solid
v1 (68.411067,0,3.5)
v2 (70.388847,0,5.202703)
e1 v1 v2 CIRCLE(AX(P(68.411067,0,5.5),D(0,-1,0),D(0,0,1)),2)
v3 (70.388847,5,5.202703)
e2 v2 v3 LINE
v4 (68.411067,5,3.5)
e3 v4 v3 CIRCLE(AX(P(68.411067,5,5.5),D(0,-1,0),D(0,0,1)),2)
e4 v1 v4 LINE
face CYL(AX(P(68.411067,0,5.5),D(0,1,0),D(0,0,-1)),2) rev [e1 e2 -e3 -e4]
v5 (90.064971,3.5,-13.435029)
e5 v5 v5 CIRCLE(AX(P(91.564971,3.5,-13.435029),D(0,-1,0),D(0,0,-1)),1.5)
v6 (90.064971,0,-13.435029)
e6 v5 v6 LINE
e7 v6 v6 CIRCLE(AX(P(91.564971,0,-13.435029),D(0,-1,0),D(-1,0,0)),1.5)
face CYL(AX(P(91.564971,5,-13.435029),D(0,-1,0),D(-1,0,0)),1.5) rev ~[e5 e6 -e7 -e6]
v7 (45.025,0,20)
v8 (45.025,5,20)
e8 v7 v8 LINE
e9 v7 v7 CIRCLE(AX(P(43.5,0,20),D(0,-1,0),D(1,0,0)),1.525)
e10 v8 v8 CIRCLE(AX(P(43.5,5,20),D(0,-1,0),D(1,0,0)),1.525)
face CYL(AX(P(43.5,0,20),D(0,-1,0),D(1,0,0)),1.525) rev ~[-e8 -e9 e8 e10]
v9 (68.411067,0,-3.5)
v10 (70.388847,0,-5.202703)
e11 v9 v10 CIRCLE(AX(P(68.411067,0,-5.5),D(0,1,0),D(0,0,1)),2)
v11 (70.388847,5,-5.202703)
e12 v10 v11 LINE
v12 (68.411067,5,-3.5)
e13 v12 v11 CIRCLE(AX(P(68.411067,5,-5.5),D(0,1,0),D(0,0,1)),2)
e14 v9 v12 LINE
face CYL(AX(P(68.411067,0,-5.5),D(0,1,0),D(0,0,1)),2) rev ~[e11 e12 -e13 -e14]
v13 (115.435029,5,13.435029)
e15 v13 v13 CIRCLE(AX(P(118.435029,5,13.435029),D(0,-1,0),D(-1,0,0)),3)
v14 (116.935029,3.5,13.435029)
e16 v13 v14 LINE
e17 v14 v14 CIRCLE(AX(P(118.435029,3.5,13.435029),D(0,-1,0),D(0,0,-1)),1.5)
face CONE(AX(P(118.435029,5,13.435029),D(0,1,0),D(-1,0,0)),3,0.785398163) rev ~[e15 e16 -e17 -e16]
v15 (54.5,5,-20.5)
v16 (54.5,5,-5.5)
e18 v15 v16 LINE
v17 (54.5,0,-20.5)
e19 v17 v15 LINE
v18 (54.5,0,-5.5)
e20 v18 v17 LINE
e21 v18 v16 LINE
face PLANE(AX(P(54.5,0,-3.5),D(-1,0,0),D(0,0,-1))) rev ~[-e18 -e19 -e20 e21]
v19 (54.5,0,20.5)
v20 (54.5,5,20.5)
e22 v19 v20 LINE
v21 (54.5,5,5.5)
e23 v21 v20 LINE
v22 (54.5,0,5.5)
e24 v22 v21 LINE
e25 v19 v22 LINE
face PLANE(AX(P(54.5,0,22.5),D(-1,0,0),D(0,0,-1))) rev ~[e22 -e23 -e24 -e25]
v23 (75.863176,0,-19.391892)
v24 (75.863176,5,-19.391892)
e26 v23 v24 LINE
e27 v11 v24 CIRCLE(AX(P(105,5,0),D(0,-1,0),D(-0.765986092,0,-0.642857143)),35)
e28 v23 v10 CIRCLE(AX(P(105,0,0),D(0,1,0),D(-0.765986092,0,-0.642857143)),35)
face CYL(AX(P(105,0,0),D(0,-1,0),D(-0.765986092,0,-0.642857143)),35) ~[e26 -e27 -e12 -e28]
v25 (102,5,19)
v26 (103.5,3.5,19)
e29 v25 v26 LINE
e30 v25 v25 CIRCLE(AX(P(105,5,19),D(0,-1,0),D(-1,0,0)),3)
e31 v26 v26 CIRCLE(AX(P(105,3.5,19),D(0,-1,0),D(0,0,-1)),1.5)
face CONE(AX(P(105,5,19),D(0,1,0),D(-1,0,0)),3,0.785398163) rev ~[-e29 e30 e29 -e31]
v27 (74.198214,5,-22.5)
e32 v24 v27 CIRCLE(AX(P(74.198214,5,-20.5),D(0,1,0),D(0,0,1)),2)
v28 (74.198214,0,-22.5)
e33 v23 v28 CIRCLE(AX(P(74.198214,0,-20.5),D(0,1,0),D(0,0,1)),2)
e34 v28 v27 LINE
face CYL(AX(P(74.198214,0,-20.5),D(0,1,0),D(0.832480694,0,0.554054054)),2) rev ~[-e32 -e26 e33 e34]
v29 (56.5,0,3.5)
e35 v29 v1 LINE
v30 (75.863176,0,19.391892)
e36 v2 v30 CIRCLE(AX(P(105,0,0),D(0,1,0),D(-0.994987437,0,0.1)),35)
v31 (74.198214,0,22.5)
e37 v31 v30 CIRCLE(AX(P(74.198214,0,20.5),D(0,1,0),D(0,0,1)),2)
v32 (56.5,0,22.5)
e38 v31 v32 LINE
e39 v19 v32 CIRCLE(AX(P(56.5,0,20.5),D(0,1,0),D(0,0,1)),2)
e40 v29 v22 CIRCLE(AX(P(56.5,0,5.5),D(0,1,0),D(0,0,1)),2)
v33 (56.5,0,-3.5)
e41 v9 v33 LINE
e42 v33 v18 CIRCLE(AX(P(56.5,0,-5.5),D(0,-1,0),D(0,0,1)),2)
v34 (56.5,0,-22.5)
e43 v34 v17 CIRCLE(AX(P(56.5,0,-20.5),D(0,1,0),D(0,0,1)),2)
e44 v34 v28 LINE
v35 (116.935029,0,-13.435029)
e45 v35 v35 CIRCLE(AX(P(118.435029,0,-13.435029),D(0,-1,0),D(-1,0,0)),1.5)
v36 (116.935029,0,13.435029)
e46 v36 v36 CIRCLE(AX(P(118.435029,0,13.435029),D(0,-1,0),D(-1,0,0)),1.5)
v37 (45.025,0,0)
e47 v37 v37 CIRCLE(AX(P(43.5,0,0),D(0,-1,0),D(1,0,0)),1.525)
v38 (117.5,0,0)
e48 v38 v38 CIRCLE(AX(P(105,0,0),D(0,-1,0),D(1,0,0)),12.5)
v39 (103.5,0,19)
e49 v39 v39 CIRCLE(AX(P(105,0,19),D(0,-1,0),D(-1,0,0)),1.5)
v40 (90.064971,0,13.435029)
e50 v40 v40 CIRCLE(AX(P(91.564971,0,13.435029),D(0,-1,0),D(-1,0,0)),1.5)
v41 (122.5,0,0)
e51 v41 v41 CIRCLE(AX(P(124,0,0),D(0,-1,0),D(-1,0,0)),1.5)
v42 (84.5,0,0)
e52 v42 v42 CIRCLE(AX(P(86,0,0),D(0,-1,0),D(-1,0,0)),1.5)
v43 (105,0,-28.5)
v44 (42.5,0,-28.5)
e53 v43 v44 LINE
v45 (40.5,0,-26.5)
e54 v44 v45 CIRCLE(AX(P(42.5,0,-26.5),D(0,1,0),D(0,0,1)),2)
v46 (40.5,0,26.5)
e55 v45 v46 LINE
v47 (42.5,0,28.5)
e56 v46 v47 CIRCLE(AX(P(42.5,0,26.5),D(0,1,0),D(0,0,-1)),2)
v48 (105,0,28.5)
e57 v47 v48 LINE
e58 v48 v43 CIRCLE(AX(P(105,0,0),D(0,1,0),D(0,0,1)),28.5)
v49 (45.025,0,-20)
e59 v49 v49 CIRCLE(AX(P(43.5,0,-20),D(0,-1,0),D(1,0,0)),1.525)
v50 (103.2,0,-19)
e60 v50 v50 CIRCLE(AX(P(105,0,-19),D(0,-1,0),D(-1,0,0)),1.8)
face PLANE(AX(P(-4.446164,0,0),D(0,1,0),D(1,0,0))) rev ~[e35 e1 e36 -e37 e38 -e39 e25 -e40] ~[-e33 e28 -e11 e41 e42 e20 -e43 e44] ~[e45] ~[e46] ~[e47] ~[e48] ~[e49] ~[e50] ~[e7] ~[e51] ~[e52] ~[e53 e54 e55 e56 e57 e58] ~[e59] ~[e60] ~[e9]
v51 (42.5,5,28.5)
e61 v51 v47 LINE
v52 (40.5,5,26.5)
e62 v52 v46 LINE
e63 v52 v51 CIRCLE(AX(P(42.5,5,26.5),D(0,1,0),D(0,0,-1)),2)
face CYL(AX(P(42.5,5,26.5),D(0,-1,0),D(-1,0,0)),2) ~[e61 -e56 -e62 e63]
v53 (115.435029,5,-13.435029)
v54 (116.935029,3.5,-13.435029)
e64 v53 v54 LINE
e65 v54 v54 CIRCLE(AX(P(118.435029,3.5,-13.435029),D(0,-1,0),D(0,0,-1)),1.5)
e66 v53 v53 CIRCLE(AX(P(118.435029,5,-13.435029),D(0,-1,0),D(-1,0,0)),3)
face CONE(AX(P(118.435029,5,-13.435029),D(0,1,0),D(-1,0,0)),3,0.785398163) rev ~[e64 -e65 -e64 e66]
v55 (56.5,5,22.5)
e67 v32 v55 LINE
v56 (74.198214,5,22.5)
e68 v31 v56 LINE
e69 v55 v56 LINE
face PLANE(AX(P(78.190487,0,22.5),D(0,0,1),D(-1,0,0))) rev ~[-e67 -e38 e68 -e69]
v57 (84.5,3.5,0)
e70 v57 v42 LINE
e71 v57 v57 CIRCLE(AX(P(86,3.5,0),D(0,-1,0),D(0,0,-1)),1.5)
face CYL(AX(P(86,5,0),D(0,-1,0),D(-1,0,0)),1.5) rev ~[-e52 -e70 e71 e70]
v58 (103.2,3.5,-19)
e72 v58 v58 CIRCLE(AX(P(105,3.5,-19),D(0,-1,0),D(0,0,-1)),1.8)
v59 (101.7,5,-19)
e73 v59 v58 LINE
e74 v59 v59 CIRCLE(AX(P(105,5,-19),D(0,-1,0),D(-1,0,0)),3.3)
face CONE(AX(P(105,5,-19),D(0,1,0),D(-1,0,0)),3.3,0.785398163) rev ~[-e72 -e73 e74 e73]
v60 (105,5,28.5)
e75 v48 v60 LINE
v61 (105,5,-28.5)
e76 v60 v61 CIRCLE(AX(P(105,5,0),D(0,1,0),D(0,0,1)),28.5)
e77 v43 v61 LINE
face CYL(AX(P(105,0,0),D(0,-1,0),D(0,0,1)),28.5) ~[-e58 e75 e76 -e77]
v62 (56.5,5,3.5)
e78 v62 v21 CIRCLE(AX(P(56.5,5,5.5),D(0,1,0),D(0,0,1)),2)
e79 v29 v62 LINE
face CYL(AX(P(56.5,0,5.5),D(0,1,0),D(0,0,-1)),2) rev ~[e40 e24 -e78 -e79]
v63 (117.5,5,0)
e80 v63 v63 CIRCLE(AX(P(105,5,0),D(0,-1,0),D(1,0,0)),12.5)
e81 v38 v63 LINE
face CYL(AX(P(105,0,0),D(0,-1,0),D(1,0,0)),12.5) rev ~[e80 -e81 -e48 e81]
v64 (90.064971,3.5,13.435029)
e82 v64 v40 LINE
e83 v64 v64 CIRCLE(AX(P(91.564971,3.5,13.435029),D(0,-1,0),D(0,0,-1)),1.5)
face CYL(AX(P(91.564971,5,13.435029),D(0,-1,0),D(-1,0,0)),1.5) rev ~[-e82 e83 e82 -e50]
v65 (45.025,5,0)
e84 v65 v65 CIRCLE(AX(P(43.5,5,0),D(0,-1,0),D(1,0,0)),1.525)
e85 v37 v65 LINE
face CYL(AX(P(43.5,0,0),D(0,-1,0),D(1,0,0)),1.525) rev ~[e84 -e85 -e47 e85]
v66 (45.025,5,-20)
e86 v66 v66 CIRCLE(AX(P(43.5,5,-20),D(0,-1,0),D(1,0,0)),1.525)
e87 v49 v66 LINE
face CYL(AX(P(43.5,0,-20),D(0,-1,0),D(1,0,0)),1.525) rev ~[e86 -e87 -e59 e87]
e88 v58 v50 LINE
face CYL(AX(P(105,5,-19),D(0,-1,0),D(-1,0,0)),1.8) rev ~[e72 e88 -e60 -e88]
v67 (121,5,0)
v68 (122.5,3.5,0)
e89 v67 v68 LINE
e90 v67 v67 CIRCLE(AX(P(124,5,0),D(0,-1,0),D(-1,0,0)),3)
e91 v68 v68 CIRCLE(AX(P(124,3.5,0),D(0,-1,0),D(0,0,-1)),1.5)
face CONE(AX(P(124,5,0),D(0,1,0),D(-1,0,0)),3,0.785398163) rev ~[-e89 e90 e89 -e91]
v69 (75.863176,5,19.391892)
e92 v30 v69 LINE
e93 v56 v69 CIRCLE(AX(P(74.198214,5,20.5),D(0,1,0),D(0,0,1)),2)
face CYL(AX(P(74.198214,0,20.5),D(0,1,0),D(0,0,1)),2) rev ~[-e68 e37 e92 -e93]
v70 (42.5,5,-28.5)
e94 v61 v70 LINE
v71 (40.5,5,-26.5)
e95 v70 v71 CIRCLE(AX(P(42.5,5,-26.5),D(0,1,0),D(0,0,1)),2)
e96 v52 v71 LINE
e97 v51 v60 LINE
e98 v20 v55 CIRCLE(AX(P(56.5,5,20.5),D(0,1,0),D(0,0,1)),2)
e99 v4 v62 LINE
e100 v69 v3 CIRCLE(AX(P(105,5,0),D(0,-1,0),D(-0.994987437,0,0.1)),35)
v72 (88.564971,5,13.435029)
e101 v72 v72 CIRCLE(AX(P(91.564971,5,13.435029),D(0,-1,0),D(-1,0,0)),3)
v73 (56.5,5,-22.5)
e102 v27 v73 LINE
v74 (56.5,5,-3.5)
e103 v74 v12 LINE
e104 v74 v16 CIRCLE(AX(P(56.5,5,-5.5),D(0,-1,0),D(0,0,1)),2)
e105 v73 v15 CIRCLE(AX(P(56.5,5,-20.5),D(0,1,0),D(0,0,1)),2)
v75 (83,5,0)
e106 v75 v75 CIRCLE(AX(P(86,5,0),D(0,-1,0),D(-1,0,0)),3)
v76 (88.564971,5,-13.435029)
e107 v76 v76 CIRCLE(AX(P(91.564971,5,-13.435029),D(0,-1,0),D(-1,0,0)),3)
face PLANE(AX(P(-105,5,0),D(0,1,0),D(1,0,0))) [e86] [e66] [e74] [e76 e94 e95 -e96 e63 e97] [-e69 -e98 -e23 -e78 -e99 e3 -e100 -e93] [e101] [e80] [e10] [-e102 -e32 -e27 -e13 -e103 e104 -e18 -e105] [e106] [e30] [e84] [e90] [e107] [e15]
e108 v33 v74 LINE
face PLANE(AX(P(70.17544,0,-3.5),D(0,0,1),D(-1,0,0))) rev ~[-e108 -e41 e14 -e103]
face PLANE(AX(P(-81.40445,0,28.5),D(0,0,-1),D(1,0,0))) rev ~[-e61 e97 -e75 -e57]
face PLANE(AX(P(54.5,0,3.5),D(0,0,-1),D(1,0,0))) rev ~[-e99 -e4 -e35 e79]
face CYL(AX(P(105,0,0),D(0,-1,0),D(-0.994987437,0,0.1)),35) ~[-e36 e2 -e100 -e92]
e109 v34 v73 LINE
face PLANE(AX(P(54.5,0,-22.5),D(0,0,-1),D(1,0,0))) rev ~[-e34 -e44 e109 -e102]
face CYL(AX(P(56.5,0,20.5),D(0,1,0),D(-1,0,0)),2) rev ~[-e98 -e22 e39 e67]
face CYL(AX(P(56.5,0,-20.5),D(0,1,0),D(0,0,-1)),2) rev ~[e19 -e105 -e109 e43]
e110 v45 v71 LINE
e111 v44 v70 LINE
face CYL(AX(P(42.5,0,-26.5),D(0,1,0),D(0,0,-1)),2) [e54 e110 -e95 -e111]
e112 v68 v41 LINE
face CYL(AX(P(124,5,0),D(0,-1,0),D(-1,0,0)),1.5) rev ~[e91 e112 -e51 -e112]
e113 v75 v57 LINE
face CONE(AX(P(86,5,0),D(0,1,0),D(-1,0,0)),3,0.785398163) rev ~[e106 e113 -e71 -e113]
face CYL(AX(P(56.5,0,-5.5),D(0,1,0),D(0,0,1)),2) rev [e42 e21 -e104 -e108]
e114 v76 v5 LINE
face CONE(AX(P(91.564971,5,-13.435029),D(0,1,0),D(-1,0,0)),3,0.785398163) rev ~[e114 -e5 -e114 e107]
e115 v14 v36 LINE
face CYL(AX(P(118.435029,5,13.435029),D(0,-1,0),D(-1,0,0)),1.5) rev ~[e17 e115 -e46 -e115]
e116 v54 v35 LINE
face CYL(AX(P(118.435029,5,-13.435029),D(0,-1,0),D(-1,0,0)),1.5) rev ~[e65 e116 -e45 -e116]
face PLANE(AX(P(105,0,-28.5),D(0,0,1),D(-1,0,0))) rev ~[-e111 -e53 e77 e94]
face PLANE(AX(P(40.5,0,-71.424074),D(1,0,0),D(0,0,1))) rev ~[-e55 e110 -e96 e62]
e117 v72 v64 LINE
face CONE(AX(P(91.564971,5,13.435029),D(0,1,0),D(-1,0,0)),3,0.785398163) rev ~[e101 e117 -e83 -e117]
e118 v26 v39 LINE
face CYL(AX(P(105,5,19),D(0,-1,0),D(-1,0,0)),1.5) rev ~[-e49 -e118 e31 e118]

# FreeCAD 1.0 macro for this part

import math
import FreeCAD as App
import Part
import Sketcher
Q = App.Units.Quantity


def edges_at(feature, points):
    """Names of the edges that pass closest to the given points."""
    edges = feature.Shape.Edges
    near = lambda p: min(range(len(edges)), key=lambda i: edges[i].distToShape(Part.Vertex(*p))[0])
    return sorted({f"Edge{near(p) + 1}" for p in points})


def add_polygon(sketch, points):
    """Adds a closed chain of lines whose ends are joined by coincident constraints."""
    first, n = sketch.GeometryCount, len(points)
    for a, b in zip(points, points[1:] + points[:1]):
        sketch.addGeometry(Part.LineSegment(App.Vector(*a, 0), App.Vector(*b, 0)), False)
    for i in range(n):
        sketch.addConstraint(Sketcher.Constraint("Coincident", first + i, 2, first + (i + 1) % n, 1))

doc = App.newDocument("Part")
body = doc.addObject("PartDesign::Body", "Body")

sketch1 = body.newObject("Sketcher::SketchObject", "Sketch")
sketch1.AttachmentSupport = (doc.getObject("XZ_Plane"), [""])
sketch1.MapMode = "FlatFace"
sketch1.addGeometry(Part.LineSegment(App.Vector(105, -28, 0), App.Vector(-81, -28, 0)), False)
sketch1.addGeometry(Part.ArcOfCircle(Part.Circle(App.Vector(-105, 0, 0), App.Vector(0, 0, 1), 37), math.radians(50), math.radians(310)), False)
sketch1.addGeometry(Part.LineSegment(App.Vector(-81, 28, 0), App.Vector(105, 28, 0)), False)
sketch1.addGeometry(Part.ArcOfCircle(Part.Circle(App.Vector(105, 0, 0), App.Vector(0, 0, 1), 28), math.radians(-90), math.radians(90)), False)
sketch1.addConstraint(Sketcher.Constraint("Coincident", 0, 2, 1, 2))
sketch1.addConstraint(Sketcher.Constraint("Coincident", 1, 1, 2, 1))
sketch1.addConstraint(Sketcher.Constraint("Tangent", 2, 2, 3, 2))
sketch1.addConstraint(Sketcher.Constraint("Tangent", 3, 1, 0, 1))
sketch1.addConstraint(Sketcher.Constraint("Horizontal", 0))
sketch1.addConstraint(Sketcher.Constraint("Horizontal", 2))
sketch1.addConstraint(Sketcher.Constraint("Symmetric", 1, 3, 3, 3, -1, 1))
sketch1.addConstraint(Sketcher.Constraint("PointOnObject", 1, 3, -1))
sketch1.addConstraint(Sketcher.Constraint("Radius", 1, Q("37 mm")))
sketch1.addConstraint(Sketcher.Constraint("Radius", 3, Q("28.5 mm")))
sketch1.addConstraint(Sketcher.Constraint("DistanceX", 1, 3, -1, 1, Q("105 mm")))
pad1 = body.newObject("PartDesign::Pad", "Pad")
pad1.Profile = sketch1
pad1.Length = 5
pad1.Reversed = True

sketch2 = body.newObject("Sketcher::SketchObject", "Sketch001")
sketch2.AttachmentSupport = (doc.getObject("XZ_Plane"), [""])
sketch2.MapMode = "FlatFace"
sketch2.addGeometry(Part.Circle(App.Vector(118.4, 13.4, 0), App.Vector(0, 0, 1), 1.3), False)
sketch2.addGeometry(Part.Circle(App.Vector(118.4, -13.4, 0), App.Vector(0, 0, 1), 1.3), False)
sketch2.addGeometry(Part.Circle(App.Vector(91.6, -13.4, 0), App.Vector(0, 0, 1), 1.3), False)
sketch2.addGeometry(Part.Circle(App.Vector(91.6, 13.4, 0), App.Vector(0, 0, 1), 1.3), False)
sketch2.addGeometry(Part.Circle(App.Vector(124, 0, 0), App.Vector(0, 0, 1), 1.3), False)
sketch2.addGeometry(Part.Circle(App.Vector(105, -19, 0), App.Vector(0, 0, 1), 1.3), False)
sketch2.addGeometry(Part.Circle(App.Vector(86, 0, 0), App.Vector(0, 0, 1), 1.3), False)
sketch2.addGeometry(Part.Circle(App.Vector(105, 19, 0), App.Vector(0, 0, 1), 1.3), False)
sketch2.addConstraint(Sketcher.Constraint("Equal", 0, 1))
sketch2.addConstraint(Sketcher.Constraint("Equal", 1, 2))
sketch2.addConstraint(Sketcher.Constraint("Equal", 2, 3))
sketch2.addConstraint(Sketcher.Constraint("Equal", 3, 4))
sketch2.addConstraint(Sketcher.Constraint("Equal", 4, 5))
sketch2.addConstraint(Sketcher.Constraint("Equal", 5, 6))
sketch2.addConstraint(Sketcher.Constraint("Equal", 6, 7))
sketch2.addConstraint(Sketcher.Constraint("Symmetric", 0, 3, 1, 3, -1))
sketch2.addConstraint(Sketcher.Constraint("Symmetric", 2, 3, 3, 3, -1))
sketch2.addConstraint(Sketcher.Constraint("Symmetric", 5, 3, 7, 3, -1))
sketch2.addConstraint(Sketcher.Constraint("PointOnObject", 4, 3, -1))
sketch2.addConstraint(Sketcher.Constraint("PointOnObject", 6, 3, -1))
sketch2.addConstraint(Sketcher.Constraint("Horizontal", 1, 3, 2, 3))
sketch2.addConstraint(Sketcher.Constraint("Diameter", 0, Q("2.55 mm")))
sketch2.addConstraint(Sketcher.Constraint("DistanceX", -1, 1, 4, 3, Q("124 mm")))
sketch2.addConstraint(Sketcher.Constraint("DistanceX", -1, 1, 5, 3, Q("105 mm")))
sketch2.addConstraint(Sketcher.Constraint("DistanceY", 5, 3, -1, 1, Q("19 mm")))
sketch2.addConstraint(Sketcher.Constraint("DistanceX", -1, 1, 6, 3, Q("86 mm")))
sketch2.addConstraint(Sketcher.Constraint("DistanceX", -1, 1, 0, 3, Q("118.435029 mm")))
sketch2.addConstraint(Sketcher.Constraint("DistanceY", -1, 1, 0, 3, Q("13.435029 mm")))
sketch2.addConstraint(Sketcher.Constraint("DistanceX", -1, 1, 2, 3, Q("91.564971 mm")))
pocket1 = body.newObject("PartDesign::Pocket", "Pocket")
pocket1.Profile = sketch2
pocket1.Type = "ThroughAll"

sketch3 = body.newObject("Sketcher::SketchObject", "Sketch002")
sketch3.AttachmentSupport = (doc.getObject("XZ_Plane"), [""])
sketch3.MapMode = "FlatFace"
sketch3.AttachmentOffset = App.Placement(App.Vector(0, 0, -5), App.Rotation())
sketch3.addGeometry(Part.Circle(App.Vector(-105, 0, 0), App.Vector(0, 0, 1), 10), False)
sketch3.addConstraint(Sketcher.Constraint("PointOnObject", 0, 3, -1))
sketch3.addConstraint(Sketcher.Constraint("Diameter", 0, Q("20 mm")))
sketch3.addConstraint(Sketcher.Constraint("DistanceX", 0, 3, -1, 1, Q("105 mm")))
pocket2 = body.newObject("PartDesign::Pocket", "Pocket001")
pocket2.Profile = sketch3
pocket2.Type = "ThroughAll"
pocket2.Reversed = True

sketch4 = body.newObject("Sketcher::SketchObject", "Sketch003")
sketch4.AttachmentSupport = (doc.getObject("XZ_Plane"), [""])
sketch4.MapMode = "FlatFace"
sketch4.AttachmentOffset = App.Placement(App.Vector(0, 0, -5), App.Rotation())
sketch4.addGeometry(Part.Circle(App.Vector(-135, 0, 0), App.Vector(0, 0, 1), 1.5), False)
sketch4.addGeometry(Part.Circle(App.Vector(-120, -26, 0), App.Vector(0, 0, 1), 1.5), False)
sketch4.addGeometry(Part.Circle(App.Vector(-90, -26, 0), App.Vector(0, 0, 1), 1.5), False)
sketch4.addGeometry(Part.Circle(App.Vector(-75, 0, 0), App.Vector(0, 0, 1), 1.5), False)
sketch4.addGeometry(Part.Circle(App.Vector(-90, 26, 0), App.Vector(0, 0, 1), 1.5), False)
sketch4.addGeometry(Part.Circle(App.Vector(-120, 26, 0), App.Vector(0, 0, 1), 1.5), False)
sketch4.addConstraint(Sketcher.Constraint("Equal", 0, 1))
sketch4.addConstraint(Sketcher.Constraint("Equal", 1, 2))
sketch4.addConstraint(Sketcher.Constraint("Equal", 2, 3))
sketch4.addConstraint(Sketcher.Constraint("Equal", 3, 4))
sketch4.addConstraint(Sketcher.Constraint("Equal", 4, 5))
sketch4.addConstraint(Sketcher.Constraint("Symmetric", 2, 3, 4, 3, -1))
sketch4.addConstraint(Sketcher.Constraint("Symmetric", 1, 3, 5, 3, -1))
sketch4.addConstraint(Sketcher.Constraint("PointOnObject", 0, 3, -1))
sketch4.addConstraint(Sketcher.Constraint("PointOnObject", 3, 3, -1))
sketch4.addConstraint(Sketcher.Constraint("Horizontal", 1, 3, 2, 3))
sketch4.addConstraint(Sketcher.Constraint("Diameter", 0, Q("3.05 mm")))
sketch4.addConstraint(Sketcher.Constraint("DistanceX", 0, 3, -1, 1, Q("135 mm")))
sketch4.addConstraint(Sketcher.Constraint("DistanceX", 1, 3, -1, 1, Q("120 mm")))
sketch4.addConstraint(Sketcher.Constraint("DistanceX", 2, 3, -1, 1, Q("90 mm")))
sketch4.addConstraint(Sketcher.Constraint("DistanceX", 3, 3, -1, 1, Q("75 mm")))
sketch4.addConstraint(Sketcher.Constraint("DistanceY", 1, 3, -1, 1, Q("25.980762 mm")))
pocket3 = body.newObject("PartDesign::Pocket", "Pocket002")
pocket3.Profile = sketch4
pocket3.Type = "ThroughAll"
pocket3.Reversed = True

sketch5 = body.newObject("Sketcher::SketchObject", "Sketch004")
sketch5.AttachmentSupport = (doc.getObject("XZ_Plane"), [""])
sketch5.MapMode = "FlatFace"
sketch5.addGeometry(Part.Circle(App.Vector(105, 0, 0), App.Vector(0, 0, 1), 12), False)
sketch5.addConstraint(Sketcher.Constraint("PointOnObject", 0, 3, -1))
sketch5.addConstraint(Sketcher.Constraint("Diameter", 0, Q("25 mm")))
sketch5.addConstraint(Sketcher.Constraint("DistanceX", -1, 1, 0, 3, Q("105 mm")))
pocket4 = body.newObject("PartDesign::Pocket", "Pocket003")
pocket4.Profile = sketch5
pocket4.Type = "ThroughAll"

sketch6 = body.newObject("Sketcher::SketchObject", "Sketch005")
sketch6.AttachmentSupport = (doc.getObject("XZ_Plane"), [""])
sketch6.MapMode = "FlatFace"
sketch6.AttachmentOffset = App.Placement(App.Vector(0, 0, -5), App.Rotation())
sketch6.addGeometry(Part.Circle(App.Vector(105, -19, 0), App.Vector(0, 0, 1), 1.8), False)
sketch6.addConstraint(Sketcher.Constraint("Diameter", 0, Q("3.6 mm")))
sketch6.addConstraint(Sketcher.Constraint("DistanceX", -1, 1, 0, 3, Q("105 mm")))
sketch6.addConstraint(Sketcher.Constraint("DistanceY", 0, 3, -1, 1, Q("19 mm")))
doc.recompute()
hole = body.newObject("PartDesign::Hole", "Hole")
hole.Profile = sketch6
hole.ThreadType = "None"
hole.Diameter = 3.6
hole.DepthType = "ThroughAll"
hole.HoleCutType = "Countersink"
hole.HoleCutDiameter = 6.6
hole.HoleCutCountersinkAngle = 90
hole.Reversed = True

sketch7 = body.newObject("Sketcher::SketchObject", "Sketch006")
sketch7.AttachmentSupport = (doc.getObject("XZ_Plane"), [""])
sketch7.MapMode = "FlatFace"
sketch7.AttachmentOffset = App.Placement(App.Vector(0, 0, -5), App.Rotation())
sketch7.addGeometry(Part.Circle(App.Vector(91.6, -13.4, 0), App.Vector(0, 0, 1), 1.5), False)
sketch7.addGeometry(Part.Circle(App.Vector(86, 0, 0), App.Vector(0, 0, 1), 1.5), False)
sketch7.addGeometry(Part.Circle(App.Vector(91.6, 13.4, 0), App.Vector(0, 0, 1), 1.5), False)
sketch7.addGeometry(Part.Circle(App.Vector(105, 19, 0), App.Vector(0, 0, 1), 1.5), False)
sketch7.addGeometry(Part.Circle(App.Vector(118.4, 13.4, 0), App.Vector(0, 0, 1), 1.5), False)
sketch7.addGeometry(Part.Circle(App.Vector(124, 0, 0), App.Vector(0, 0, 1), 1.5), False)
sketch7.addGeometry(Part.Circle(App.Vector(118.4, -13.4, 0), App.Vector(0, 0, 1), 1.5), False)
sketch7.addConstraint(Sketcher.Constraint("Equal", 0, 1))
sketch7.addConstraint(Sketcher.Constraint("Equal", 1, 2))
sketch7.addConstraint(Sketcher.Constraint("Equal", 2, 3))
sketch7.addConstraint(Sketcher.Constraint("Equal", 3, 4))
sketch7.addConstraint(Sketcher.Constraint("Equal", 4, 5))
sketch7.addConstraint(Sketcher.Constraint("Equal", 5, 6))
sketch7.addConstraint(Sketcher.Constraint("Symmetric", 0, 3, 2, 3, -1))
sketch7.addConstraint(Sketcher.Constraint("Symmetric", 4, 3, 6, 3, -1))
sketch7.addConstraint(Sketcher.Constraint("PointOnObject", 1, 3, -1))
sketch7.addConstraint(Sketcher.Constraint("PointOnObject", 5, 3, -1))
sketch7.addConstraint(Sketcher.Constraint("Horizontal", 2, 3, 4, 3))
sketch7.addConstraint(Sketcher.Constraint("Diameter", 0, Q("3 mm")))
sketch7.addConstraint(Sketcher.Constraint("DistanceX", -1, 1, 1, 3, Q("86 mm")))
sketch7.addConstraint(Sketcher.Constraint("DistanceX", -1, 1, 3, 3, Q("105 mm")))
sketch7.addConstraint(Sketcher.Constraint("DistanceY", -1, 1, 3, 3, Q("19 mm")))
sketch7.addConstraint(Sketcher.Constraint("DistanceX", -1, 1, 5, 3, Q("124 mm")))
sketch7.addConstraint(Sketcher.Constraint("DistanceX", -1, 1, 0, 3, Q("91.564971 mm")))
sketch7.addConstraint(Sketcher.Constraint("DistanceY", 0, 3, -1, 1, Q("13.435029 mm")))
sketch7.addConstraint(Sketcher.Constraint("DistanceX", -1, 1, 4, 3, Q("118.435029 mm")))
doc.recompute()
hole2 = body.newObject("PartDesign::Hole", "Hole001")
hole2.Profile = sketch7
hole2.ThreadType = "None"
hole2.Diameter = 3
hole2.DepthType = "ThroughAll"
hole2.HoleCutType = "Countersink"
hole2.HoleCutDiameter = 6
hole2.HoleCutCountersinkAngle = 90
hole2.Reversed = True

sketch8 = body.newObject("Sketcher::SketchObject", "Sketch007")
sketch8.AttachmentSupport = (doc.getObject("XZ_Plane"), [""])
sketch8.MapMode = "FlatFace"
sketch8.AttachmentOffset = App.Placement(App.Vector(0, 0, -5), App.Rotation())
sketch8.addGeometry(Part.Circle(App.Vector(-105, -17.2, 0), App.Vector(0, 0, 1), 2), False)
sketch8.addGeometry(Part.Circle(App.Vector(-90.1, -8.6, 0), App.Vector(0, 0, 1), 2), False)
sketch8.addGeometry(Part.Circle(App.Vector(-90.1, 8.6, 0), App.Vector(0, 0, 1), 2), False)
sketch8.addGeometry(Part.Circle(App.Vector(-105, 17.2, 0), App.Vector(0, 0, 1), 2), False)
sketch8.addGeometry(Part.Circle(App.Vector(-119.9, 8.6, 0), App.Vector(0, 0, 1), 2), False)
sketch8.addGeometry(Part.Circle(App.Vector(-119.9, -8.6, 0), App.Vector(0, 0, 1), 2), False)
sketch8.addConstraint(Sketcher.Constraint("Equal", 0, 1))
sketch8.addConstraint(Sketcher.Constraint("Equal", 1, 2))
sketch8.addConstraint(Sketcher.Constraint("Equal", 2, 3))
sketch8.addConstraint(Sketcher.Constraint("Equal", 3, 4))
sketch8.addConstraint(Sketcher.Constraint("Equal", 4, 5))
sketch8.addConstraint(Sketcher.Constraint("Symmetric", 1, 3, 2, 3, -1))
sketch8.addConstraint(Sketcher.Constraint("Symmetric", 0, 3, 3, 3, -1))
sketch8.addConstraint(Sketcher.Constraint("Symmetric", 4, 3, 5, 3, -1))
sketch8.addConstraint(Sketcher.Constraint("Horizontal", 2, 3, 4, 3))
sketch8.addConstraint(Sketcher.Constraint("Diameter", 0, Q("4.05 mm")))
sketch8.addConstraint(Sketcher.Constraint("DistanceX", 0, 3, -1, 1, Q("105 mm")))
sketch8.addConstraint(Sketcher.Constraint("DistanceY", 0, 3, 3, 3, Q("34.5 mm")))
sketch8.addConstraint(Sketcher.Constraint("DistanceY", 1, 3, 2, 3, Q("17.25 mm")))
sketch8.addConstraint(Sketcher.Constraint("DistanceX", 1, 3, -1, 1, Q("90.061062 mm")))
sketch8.addConstraint(Sketcher.Constraint("DistanceX", 4, 3, -1, 1, Q("119.938938 mm")))
pocket5 = body.newObject("PartDesign::Pocket", "Pocket004")
pocket5.Profile = sketch8
pocket5.Length = 10
pocket5.Reversed = True

sketch9 = body.newObject("Sketcher::SketchObject", "Sketch008")
sketch9.AttachmentSupport = (doc.getObject("XZ_Plane"), [""])
sketch9.MapMode = "FlatFace"
sketch9.AttachmentOffset = App.Placement(App.Vector(0, 0, -5), App.Rotation())
sketch9.addGeometry(Part.Circle(App.Vector(-105, 0, 0), App.Vector(0, 0, 1), 37), False)
sketch9.addConstraint(Sketcher.Constraint("PointOnObject", 0, 3, -1))
sketch9.addConstraint(Sketcher.Constraint("Diameter", 0, Q("74 mm")))
sketch9.addConstraint(Sketcher.Constraint("DistanceX", 0, 3, -1, 1, Q("105 mm")))
pad2 = body.newObject("PartDesign::Pad", "Pad001")
pad2.Profile = sketch9
pad2.Length = 5

sketch10 = body.newObject("Sketcher::SketchObject", "Sketch009")
sketch10.AttachmentSupport = (doc.getObject("XZ_Plane"), [""])
sketch10.MapMode = "FlatFace"
sketch10.AttachmentOffset = App.Placement(App.Vector(0, 0, -5), App.Rotation())
sketch10.addGeometry(Part.Circle(App.Vector(-105, 0, 0), App.Vector(0, 0, 1), 42), False)
sketch10.addConstraint(Sketcher.Constraint("PointOnObject", 0, 3, -1))
sketch10.addConstraint(Sketcher.Constraint("Diameter", 0, Q("85 mm")))
sketch10.addConstraint(Sketcher.Constraint("DistanceX", 0, 3, -1, 1, Q("105 mm")))
pad3 = body.newObject("PartDesign::Pad", "Pad002")
pad3.Profile = sketch10
pad3.Length = 5

sketch11 = body.newObject("Sketcher::SketchObject", "Sketch010")
sketch11.AttachmentSupport = (doc.getObject("XZ_Plane"), [""])
sketch11.MapMode = "FlatFace"
sketch11.addGeometry(Part.Circle(App.Vector(-105, 26.2, 0), App.Vector(0, 0, 1), 2), False)
sketch11.addGeometry(Part.Circle(App.Vector(-86.4, 18.6, 0), App.Vector(0, 0, 1), 2), False)
sketch11.addGeometry(Part.Circle(App.Vector(-78.8, 0, 0), App.Vector(0, 0, 1), 2), False)
sketch11.addGeometry(Part.Circle(App.Vector(-86.4, -18.6, 0), App.Vector(0, 0, 1), 2), False)
sketch11.addGeometry(Part.Circle(App.Vector(-105, -26.2, 0), App.Vector(0, 0, 1), 2), False)
sketch11.addGeometry(Part.Circle(App.Vector(-123.6, -18.6, 0), App.Vector(0, 0, 1), 2), False)
sketch11.addGeometry(Part.Circle(App.Vector(-131.2, 0, 0), App.Vector(0, 0, 1), 2), False)
sketch11.addGeometry(Part.Circle(App.Vector(-123.6, 18.6, 0), App.Vector(0, 0, 1), 2), False)
sketch11.addConstraint(Sketcher.Constraint("Equal", 0, 1))
sketch11.addConstraint(Sketcher.Constraint("Equal", 1, 2))
sketch11.addConstraint(Sketcher.Constraint("Equal", 2, 3))
sketch11.addConstraint(Sketcher.Constraint("Equal", 3, 4))
sketch11.addConstraint(Sketcher.Constraint("Equal", 4, 5))
sketch11.addConstraint(Sketcher.Constraint("Equal", 5, 6))
sketch11.addConstraint(Sketcher.Constraint("Equal", 6, 7))
sketch11.addConstraint(Sketcher.Constraint("Symmetric", 1, 3, 3, 3, -1))
sketch11.addConstraint(Sketcher.Constraint("Symmetric", 0, 3, 4, 3, -1))
sketch11.addConstraint(Sketcher.Constraint("Symmetric", 5, 3, 7, 3, -1))
sketch11.addConstraint(Sketcher.Constraint("PointOnObject", 2, 3, -1))
sketch11.addConstraint(Sketcher.Constraint("PointOnObject", 6, 3, -1))
sketch11.addConstraint(Sketcher.Constraint("Horizontal", 3, 3, 5, 3))
sketch11.addConstraint(Sketcher.Constraint("Diameter", 0, Q("4.05 mm")))
sketch11.addConstraint(Sketcher.Constraint("DistanceX", 0, 3, -1, 1, Q("105 mm")))
sketch11.addConstraint(Sketcher.Constraint("DistanceY", 4, 3, 0, 3, Q("52.5 mm")))
sketch11.addConstraint(Sketcher.Constraint("DistanceX", 2, 3, -1, 1, Q("78.75 mm")))
sketch11.addConstraint(Sketcher.Constraint("DistanceX", 6, 3, -1, 1, Q("131.25 mm")))
sketch11.addConstraint(Sketcher.Constraint("DistanceX", 1, 3, -1, 1, Q("86.438447 mm")))
sketch11.addConstraint(Sketcher.Constraint("DistanceY", -1, 1, 1, 3, Q("18.561553 mm")))
sketch11.addConstraint(Sketcher.Constraint("DistanceX", 5, 3, -1, 1, Q("123.561553 mm")))
pocket6 = body.newObject("PartDesign::Pocket", "Pocket005")
pocket6.Profile = sketch11
pocket6.Length = 5

sketch12 = body.newObject("Sketcher::SketchObject", "Sketch011")
sketch12.AttachmentSupport = (doc.getObject("XZ_Plane"), [""])
sketch12.MapMode = "FlatFace"
sketch12.AttachmentOffset = App.Placement(App.Vector(0, 0, -5), App.Rotation())
sketch12.addGeometry(Part.LineSegment(App.Vector(-101, -12, 0), App.Vector(-99, -17, 0)), False)
sketch12.addGeometry(Part.ArcOfCircle(Part.Circle(App.Vector(-105, -15, 0), App.Vector(0, 0, 1), 6), math.radians(-162), math.radians(-18)), False)
sketch12.addGeometry(Part.LineSegment(App.Vector(-111, -17, 0), App.Vector(-109, -12, 0)), False)
sketch12.addGeometry(Part.ArcOfCircle(Part.Circle(App.Vector(-105, -5, 0), App.Vector(0, 0, 1), 8), math.radians(-116), math.radians(-64)), False)
sketch12.addConstraint(Sketcher.Constraint("Coincident", 0, 2, 1, 2))
sketch12.addConstraint(Sketcher.Constraint("Coincident", 1, 1, 2, 1))
sketch12.addConstraint(Sketcher.Constraint("Coincident", 2, 2, 3, 1))
sketch12.addConstraint(Sketcher.Constraint("Coincident", 3, 2, 0, 1))
sketch12.addConstraint(Sketcher.Constraint("Horizontal", 0, 2, 1, 1))
sketch12.addConstraint(Sketcher.Constraint("Horizontal", 2, 2, 3, 2))
sketch12.addConstraint(Sketcher.Constraint("Vertical", 1, 3, 3, 3))
sketch12.addConstraint(Sketcher.Constraint("Radius", 3, Q("8 mm")))
sketch12.addConstraint(Sketcher.Constraint("Radius", 1, Q("6.5 mm")))
sketch12.addConstraint(Sketcher.Constraint("DistanceX", 1, 3, -1, 1, Q("105 mm")))
sketch12.addConstraint(Sketcher.Constraint("DistanceY", 3, 3, -1, 1, Q("5 mm")))
sketch12.addConstraint(Sketcher.Constraint("Angle", 0, Q("-62.5 deg")))
sketch12.addConstraint(Sketcher.Constraint("DistanceY", 0, 2, 1, 3, Q("2 mm")))
sketch12.addConstraint(Sketcher.Constraint("DistanceY", 1, 3, -1, 1, Q("15.25 mm")))
pocket7 = body.newObject("PartDesign::Pocket", "Pocket006")
pocket7.Profile = sketch12
pocket7.Length = 5
pocket7.Reversed = True
doc.recompute()

datumline = body.newObject("PartDesign::Line", "DatumLine")
datumline.Placement = App.Placement(App.Vector(-105, 0, 0), App.Rotation(App.Vector(0, 0, 1), App.Vector(0, 1, 0)))
polarpattern = body.newObject("PartDesign::PolarPattern", "PolarPattern")
polarpattern.Originals = [pocket7]
polarpattern.Axis = (datumline, [""])
polarpattern.Angle = 360
polarpattern.Occurrences = 6
body.Tip = polarpattern

sketch13 = body.newObject("Sketcher::SketchObject", "Sketch012")
sketch13.AttachmentSupport = (doc.getObject("XZ_Plane"), [""])
sketch13.MapMode = "FlatFace"
sketch13.addGeometry(Part.Circle(App.Vector(-105, 0, 0), App.Vector(0, 0, 1), 6), False)
sketch13.addConstraint(Sketcher.Constraint("PointOnObject", 0, 3, -1))
sketch13.addConstraint(Sketcher.Constraint("Diameter", 0, Q("12 mm")))
sketch13.addConstraint(Sketcher.Constraint("DistanceX", 0, 3, -1, 1, Q("105 mm")))
pocket8 = body.newObject("PartDesign::Pocket", "Pocket007")
pocket8.Profile = sketch13
pocket8.Length = 5
doc.recompute()

fillet = body.newObject("PartDesign::Fillet", "Fillet")
fillet.Base = (pocket8, edges_at(pocket8, [(-73.472, 2.5, 28.5), (-73.472, 2.5, -28.5)]))
fillet.Radius = 2

sketch14 = body.newObject("Sketcher::SketchObject", "Sketch013")
sketch14.AttachmentSupport = (doc.getObject("XZ_Plane"), [""])
sketch14.MapMode = "FlatFace"
add_polygon(sketch14, [(-149, 69), (-149, -71), (40, -71), (40, 69)])
sketch14.addConstraint(Sketcher.Constraint("Vertical", 0))
sketch14.addConstraint(Sketcher.Constraint("Horizontal", 1))
sketch14.addConstraint(Sketcher.Constraint("Vertical", 2))
sketch14.addConstraint(Sketcher.Constraint("Horizontal", 3))
sketch14.addConstraint(Sketcher.Constraint("DistanceX", -1, 1, 1, 2, Q("40.5 mm")))
sketch14.addConstraint(Sketcher.Constraint("DistanceX", 1, 1, 1, 2, Q("189.416252 mm")))
sketch14.addConstraint(Sketcher.Constraint("DistanceY", 0, 2, 0, 1, Q("140.29378 mm")))
sketch14.addConstraint(Sketcher.Constraint("DistanceY", 0, 2, -1, 1, Q("71.424074 mm")))
pocket9 = body.newObject("PartDesign::Pocket", "Pocket008")
pocket9.Profile = sketch14
pocket9.Type = "ThroughAll"

sketch15 = body.newObject("Sketcher::SketchObject", "Sketch014")
sketch15.AttachmentSupport = (doc.getObject("XZ_Plane"), [""])
sketch15.MapMode = "FlatFace"
sketch15.addGeometry(Part.Circle(App.Vector(43.5, 0, 0), App.Vector(0, 0, 1), 1.5), False)
sketch15.addGeometry(Part.Circle(App.Vector(43.5, 20, 0), App.Vector(0, 0, 1), 1.5), False)
sketch15.addGeometry(Part.Circle(App.Vector(43.5, -20, 0), App.Vector(0, 0, 1), 1.5), False)
sketch15.addConstraint(Sketcher.Constraint("Equal", 0, 1))
sketch15.addConstraint(Sketcher.Constraint("Equal", 1, 2))
sketch15.addConstraint(Sketcher.Constraint("Symmetric", 1, 3, 2, 3, -1))
sketch15.addConstraint(Sketcher.Constraint("PointOnObject", 0, 3, -1))
sketch15.addConstraint(Sketcher.Constraint("Vertical", 0, 3, 1, 3))
sketch15.addConstraint(Sketcher.Constraint("Diameter", 0, Q("3.05 mm")))
sketch15.addConstraint(Sketcher.Constraint("DistanceY", -1, 1, 1, 3, Q("20 mm")))
sketch15.addConstraint(Sketcher.Constraint("DistanceX", -1, 1, 0, 3, Q("43.5 mm")))
pocket10 = body.newObject("PartDesign::Pocket", "Pocket009")
pocket10.Profile = sketch15
pocket10.Type = "ThroughAll"
doc.recompute()

fillet2 = body.newObject("PartDesign::Fillet", "Fillet001")
fillet2.Base = (pocket10, edges_at(pocket10, [(40.5, 2.5, -28.5), (40.5, 2.5, 28.5)]))
fillet2.Radius = 2

sketch16 = body.newObject("Sketcher::SketchObject", "Sketch015")
sketch16.AttachmentSupport = (doc.getObject("XZ_Plane"), [""])
sketch16.MapMode = "FlatFace"
sketch16.addGeometry(Part.ArcOfCircle(Part.Circle(App.Vector(105, 0, 0), App.Vector(0, 0, 1), 35), math.radians(140), math.radians(174)), False)
sketch16.addGeometry(Part.LineSegment(App.Vector(78, 22, 0), App.Vector(54, 22, 0)), False)
sketch16.addGeometry(Part.LineSegment(App.Vector(54, 22, 0), App.Vector(54, 4, 0)), False)
sketch16.addGeometry(Part.LineSegment(App.Vector(54, 4, 0), App.Vector(70, 4, 0)), False)
sketch16.addGeometry(Part.LineSegment(App.Vector(54, -4, 0), App.Vector(54, -22, 0)), False)
sketch16.addGeometry(Part.LineSegment(App.Vector(54, -22, 0), App.Vector(78, -22, 0)), False)
sketch16.addGeometry(Part.ArcOfCircle(Part.Circle(App.Vector(105, 0, 0), App.Vector(0, 0, 1), 35), math.radians(-174), math.radians(-140)), False)
sketch16.addGeometry(Part.LineSegment(App.Vector(70, -4, 0), App.Vector(54, -4, 0)), False)
sketch16.addConstraint(Sketcher.Constraint("Coincident", 0, 1, 1, 1))
sketch16.addConstraint(Sketcher.Constraint("Coincident", 1, 2, 2, 1))
sketch16.addConstraint(Sketcher.Constraint("Coincident", 2, 2, 3, 1))
sketch16.addConstraint(Sketcher.Constraint("Coincident", 3, 2, 0, 2))
sketch16.addConstraint(Sketcher.Constraint("Coincident", 4, 2, 5, 1))
sketch16.addConstraint(Sketcher.Constraint("Coincident", 5, 2, 6, 2))
sketch16.addConstraint(Sketcher.Constraint("Coincident", 6, 1, 7, 1))
sketch16.addConstraint(Sketcher.Constraint("Coincident", 7, 2, 4, 1))
sketch16.addConstraint(Sketcher.Constraint("Horizontal", 1))
sketch16.addConstraint(Sketcher.Constraint("Vertical", 2))
sketch16.addConstraint(Sketcher.Constraint("Horizontal", 3))
sketch16.addConstraint(Sketcher.Constraint("Vertical", 4))
sketch16.addConstraint(Sketcher.Constraint("Horizontal", 5))
sketch16.addConstraint(Sketcher.Constraint("Horizontal", 7))
sketch16.addConstraint(Sketcher.Constraint("Coincident", 6, 3, 0, 3))
sketch16.addConstraint(Sketcher.Constraint("Equal", 0, 6))
sketch16.addConstraint(Sketcher.Constraint("Symmetric", 1, 2, 4, 2, -1))
sketch16.addConstraint(Sketcher.Constraint("Symmetric", 3, 2, 6, 1, -1))
sketch16.addConstraint(Sketcher.Constraint("Radius", 0, Q("35 mm")))
sketch16.addConstraint(Sketcher.Constraint("DistanceY", 2, 2, 2, 1, Q("19 mm")))
sketch16.addConstraint(Sketcher.Constraint("DistanceX", -1, 1, 0, 3, Q("105 mm")))
sketch16.addConstraint(Sketcher.Constraint("DistanceY", 4, 2, 2, 2, Q("26 mm")))
sketch16.addConstraint(Sketcher.Constraint("DistanceX", -1, 1, 1, 2, Q("54.5 mm")))
pocket11 = body.newObject("PartDesign::Pocket", "Pocket010")
pocket11.Profile = sketch16
pocket11.Type = "ThroughAll"
doc.recompute()

fillet3 = body.newObject("PartDesign::Fillet", "Fillet002")
fillet3.Base = (pocket11, edges_at(pocket11, [
    (78.19, 2.5, 22.5),
    (70.175, 2.5, 3.5),
    (54.5, 2.5, 3.5),
    (54.5, 2.5, 22.5),
    (70.175, 2.5, -3.5),
    (78.19, 2.5, -22.5),
    (54.5, 2.5, -22.5),
    (54.5, 2.5, -3.5),
]))
fillet3.Radius = 2

doc.recompute()
